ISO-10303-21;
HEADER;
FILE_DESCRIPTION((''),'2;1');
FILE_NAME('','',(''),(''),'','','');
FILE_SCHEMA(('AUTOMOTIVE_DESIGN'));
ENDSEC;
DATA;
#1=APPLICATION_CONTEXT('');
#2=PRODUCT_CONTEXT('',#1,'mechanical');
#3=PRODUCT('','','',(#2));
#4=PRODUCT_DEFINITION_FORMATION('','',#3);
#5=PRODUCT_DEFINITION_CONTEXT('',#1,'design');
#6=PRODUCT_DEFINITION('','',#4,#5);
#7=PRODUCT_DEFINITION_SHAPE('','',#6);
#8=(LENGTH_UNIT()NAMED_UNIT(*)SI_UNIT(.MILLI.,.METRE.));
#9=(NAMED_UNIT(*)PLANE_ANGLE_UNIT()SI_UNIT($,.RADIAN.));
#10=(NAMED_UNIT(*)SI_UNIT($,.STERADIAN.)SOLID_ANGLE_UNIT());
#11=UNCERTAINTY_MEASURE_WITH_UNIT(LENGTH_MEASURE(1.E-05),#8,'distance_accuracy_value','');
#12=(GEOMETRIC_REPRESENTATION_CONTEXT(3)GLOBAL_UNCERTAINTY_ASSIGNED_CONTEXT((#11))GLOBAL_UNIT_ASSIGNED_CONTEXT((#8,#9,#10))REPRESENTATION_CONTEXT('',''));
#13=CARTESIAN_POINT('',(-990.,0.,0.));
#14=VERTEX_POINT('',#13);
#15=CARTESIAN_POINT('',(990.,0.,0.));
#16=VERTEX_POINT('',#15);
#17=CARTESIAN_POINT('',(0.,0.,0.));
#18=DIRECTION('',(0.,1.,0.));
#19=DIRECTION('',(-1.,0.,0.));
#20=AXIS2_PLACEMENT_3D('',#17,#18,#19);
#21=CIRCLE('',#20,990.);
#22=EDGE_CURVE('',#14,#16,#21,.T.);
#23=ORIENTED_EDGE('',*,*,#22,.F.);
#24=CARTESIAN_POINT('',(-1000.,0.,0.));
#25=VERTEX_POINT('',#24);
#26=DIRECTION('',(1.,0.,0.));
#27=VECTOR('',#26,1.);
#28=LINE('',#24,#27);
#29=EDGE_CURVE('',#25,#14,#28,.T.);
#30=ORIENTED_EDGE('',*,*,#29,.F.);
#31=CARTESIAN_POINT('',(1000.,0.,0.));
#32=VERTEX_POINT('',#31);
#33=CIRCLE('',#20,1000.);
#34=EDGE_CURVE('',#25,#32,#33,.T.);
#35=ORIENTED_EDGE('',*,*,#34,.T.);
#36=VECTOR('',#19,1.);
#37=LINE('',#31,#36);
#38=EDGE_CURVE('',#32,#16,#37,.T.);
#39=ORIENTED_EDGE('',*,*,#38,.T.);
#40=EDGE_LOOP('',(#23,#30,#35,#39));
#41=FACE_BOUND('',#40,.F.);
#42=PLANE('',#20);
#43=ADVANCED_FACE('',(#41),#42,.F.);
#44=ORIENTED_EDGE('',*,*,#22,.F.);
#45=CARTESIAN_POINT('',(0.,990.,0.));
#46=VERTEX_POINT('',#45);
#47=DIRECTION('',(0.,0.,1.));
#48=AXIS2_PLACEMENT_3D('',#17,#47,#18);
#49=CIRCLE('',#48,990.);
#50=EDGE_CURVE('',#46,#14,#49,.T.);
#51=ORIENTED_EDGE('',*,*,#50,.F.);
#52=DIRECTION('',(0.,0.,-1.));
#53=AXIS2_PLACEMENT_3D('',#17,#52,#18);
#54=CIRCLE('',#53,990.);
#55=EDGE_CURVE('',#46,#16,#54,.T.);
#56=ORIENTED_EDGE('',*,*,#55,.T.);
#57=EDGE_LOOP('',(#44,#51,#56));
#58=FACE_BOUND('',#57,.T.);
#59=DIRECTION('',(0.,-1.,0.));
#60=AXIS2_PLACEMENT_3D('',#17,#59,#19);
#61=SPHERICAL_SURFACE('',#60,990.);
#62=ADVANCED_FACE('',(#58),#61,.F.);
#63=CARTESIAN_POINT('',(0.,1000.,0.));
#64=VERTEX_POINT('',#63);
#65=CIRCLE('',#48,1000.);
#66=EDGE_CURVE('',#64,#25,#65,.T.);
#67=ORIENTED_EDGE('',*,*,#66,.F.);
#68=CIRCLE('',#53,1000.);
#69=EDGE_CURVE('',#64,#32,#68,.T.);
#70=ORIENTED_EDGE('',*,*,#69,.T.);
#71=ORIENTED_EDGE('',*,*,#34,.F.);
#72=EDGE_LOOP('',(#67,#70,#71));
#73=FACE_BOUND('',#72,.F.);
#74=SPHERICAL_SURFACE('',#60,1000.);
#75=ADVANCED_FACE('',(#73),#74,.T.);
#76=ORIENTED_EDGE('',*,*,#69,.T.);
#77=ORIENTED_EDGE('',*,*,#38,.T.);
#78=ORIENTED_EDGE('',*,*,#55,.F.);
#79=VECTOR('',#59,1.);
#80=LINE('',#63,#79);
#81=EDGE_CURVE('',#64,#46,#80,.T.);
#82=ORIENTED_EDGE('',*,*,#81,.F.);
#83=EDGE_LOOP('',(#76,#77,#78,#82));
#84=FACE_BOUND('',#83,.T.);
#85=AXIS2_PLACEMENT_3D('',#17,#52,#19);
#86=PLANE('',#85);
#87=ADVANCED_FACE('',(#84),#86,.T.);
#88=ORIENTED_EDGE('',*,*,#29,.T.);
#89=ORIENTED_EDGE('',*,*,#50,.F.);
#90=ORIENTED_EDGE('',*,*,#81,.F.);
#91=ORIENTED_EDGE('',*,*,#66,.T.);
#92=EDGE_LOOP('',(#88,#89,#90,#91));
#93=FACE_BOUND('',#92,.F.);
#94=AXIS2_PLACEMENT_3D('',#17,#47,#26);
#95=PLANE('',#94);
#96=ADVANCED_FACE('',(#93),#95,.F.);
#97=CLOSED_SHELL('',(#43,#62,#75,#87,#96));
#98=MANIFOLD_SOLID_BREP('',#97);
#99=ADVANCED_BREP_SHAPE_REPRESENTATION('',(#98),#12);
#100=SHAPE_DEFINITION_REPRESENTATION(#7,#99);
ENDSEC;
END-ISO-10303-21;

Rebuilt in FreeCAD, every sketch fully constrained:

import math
import FreeCAD as App
import Part
import Sketcher

V = App.Vector

doc = App.newDocument("Part")
body = doc.addObject("PartDesign::Body", "Body")

# Sketch on XY plane
sketch1 = body.newObject("Sketcher::SketchObject", "Sketch")
sketch1.AttachmentSupport = (doc.getObject("XY_Plane"), [""])
sketch1.MapMode = "FlatFace"
sketch1.addGeometry([
    Part.LineSegment(V(0, 990, 0), V(0, 1000, 0)),
    Part.ArcOfCircle(Part.Circle(V(0, 0, 0), V(0, 0, 1), 1000), math.radians(90), math.radians(180)),
    Part.LineSegment(V(-1000, 0, 0), V(-990, 0, 0)),
    Part.ArcOfCircle(Part.Circle(V(0, 0, 0), V(0, 0, 1), 990), math.radians(90), math.radians(180)),
], False)
sketch1.addConstraint([
    Sketcher.Constraint("Coincident", 0, 2, 1, 1),
    Sketcher.Constraint("Coincident", 1, 2, 2, 1),
    Sketcher.Constraint("Coincident", 2, 2, 3, 2),
    Sketcher.Constraint("Coincident", 3, 1, 0, 1),
    Sketcher.Constraint("Vertical", 0),
    Sketcher.Constraint("Horizontal", 2),
    Sketcher.Constraint("Coincident", 1, 3, -1, 1),
    Sketcher.Constraint("Coincident", 3, 3, -1, 1),
    Sketcher.Constraint("PointOnObject", 0, 2, -2),
    Sketcher.Constraint("PointOnObject", 2, 2, -1),
    Sketcher.Constraint("Radius", 1, 1000.0),
    Sketcher.Constraint("DistanceX", 2, 1, 2, 2, 10.0),
])
revolution = body.newObject("PartDesign::Revolution", "Revolution")
revolution.Profile = sketch1
revolution.ReferenceAxis = (sketch1, ["V_Axis"])
revolution.Angle = 180

doc.recompute()
